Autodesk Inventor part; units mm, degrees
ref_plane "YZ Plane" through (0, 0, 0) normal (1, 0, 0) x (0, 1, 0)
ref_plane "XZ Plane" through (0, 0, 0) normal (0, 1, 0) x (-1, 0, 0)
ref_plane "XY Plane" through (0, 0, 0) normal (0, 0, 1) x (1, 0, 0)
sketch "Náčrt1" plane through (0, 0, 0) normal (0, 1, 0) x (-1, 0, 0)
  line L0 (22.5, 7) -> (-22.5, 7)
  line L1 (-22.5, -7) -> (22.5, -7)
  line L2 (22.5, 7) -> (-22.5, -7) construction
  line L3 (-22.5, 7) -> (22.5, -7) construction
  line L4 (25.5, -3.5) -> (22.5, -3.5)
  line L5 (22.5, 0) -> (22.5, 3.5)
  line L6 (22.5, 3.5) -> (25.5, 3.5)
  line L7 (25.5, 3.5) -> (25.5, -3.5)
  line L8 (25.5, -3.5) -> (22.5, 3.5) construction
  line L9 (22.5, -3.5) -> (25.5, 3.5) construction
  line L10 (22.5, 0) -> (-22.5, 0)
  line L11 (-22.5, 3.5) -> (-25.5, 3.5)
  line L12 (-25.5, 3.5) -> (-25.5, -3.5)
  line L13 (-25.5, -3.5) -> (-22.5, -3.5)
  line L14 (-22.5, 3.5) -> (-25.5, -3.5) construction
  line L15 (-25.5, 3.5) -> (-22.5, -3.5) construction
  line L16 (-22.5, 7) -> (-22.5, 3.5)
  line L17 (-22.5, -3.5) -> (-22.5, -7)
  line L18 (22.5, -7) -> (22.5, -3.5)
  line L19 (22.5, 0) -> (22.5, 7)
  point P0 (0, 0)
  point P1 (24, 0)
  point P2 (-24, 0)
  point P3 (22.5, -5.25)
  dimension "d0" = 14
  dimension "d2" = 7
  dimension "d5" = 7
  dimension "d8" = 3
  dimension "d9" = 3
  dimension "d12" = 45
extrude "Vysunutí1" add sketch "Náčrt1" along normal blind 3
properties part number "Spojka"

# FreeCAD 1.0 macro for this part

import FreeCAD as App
import Part
import Sketcher

V = App.Vector

doc = App.newDocument("Part")
body = doc.addObject("PartDesign::Body", "Body")

# Sketch on XZ plane
sketch1 = body.newObject("Sketcher::SketchObject", "Sketch")
sketch1.AttachmentSupport = (doc.getObject("XZ_Plane"), [""])
sketch1.MapMode = "FlatFace"
sketch1.addGeometry([
    Part.LineSegment(V(-22.5, 3.5, 0), V(-22.5, 7, 0)),  # 0
    Part.LineSegment(V(-22.5, 7, 0), V(22.5, 7, 0)),  # 1
    Part.LineSegment(V(22.5, 7, 0), V(22.5, 3.5, 0)),  # 2
    Part.LineSegment(V(22.5, 3.5, 0), V(25.5, 3.5, 0)),  # 3
    Part.LineSegment(V(25.5, 3.5, 0), V(25.5, -3.5, 0)),  # 4
    Part.LineSegment(V(25.5, -3.5, 0), V(22.5, -3.5, 0)),  # 5
    Part.LineSegment(V(22.5, -3.5, 0), V(22.5, -7, 0)),  # 6
    Part.LineSegment(V(22.5, -7, 0), V(-22.5, -7, 0)),  # 7
    Part.LineSegment(V(-22.5, -7, 0), V(-22.5, -3.5, 0)),  # 8
    Part.LineSegment(V(-22.5, -3.5, 0), V(-25.5, -3.5, 0)),  # 9
    Part.LineSegment(V(-25.5, -3.5, 0), V(-25.5, 3.5, 0)),  # 10
    Part.LineSegment(V(-25.5, 3.5, 0), V(-22.5, 3.5, 0)),  # 11
], False)
sketch1.addConstraint([
    Sketcher.Constraint("Coincident", 0, 2, 1, 1),
    Sketcher.Constraint("Coincident", 1, 2, 2, 1),
    Sketcher.Constraint("Coincident", 2, 2, 3, 1),
    Sketcher.Constraint("Coincident", 3, 2, 4, 1),
    Sketcher.Constraint("Coincident", 4, 2, 5, 1),
    Sketcher.Constraint("Coincident", 5, 2, 6, 1),
    Sketcher.Constraint("Coincident", 6, 2, 7, 1),
    Sketcher.Constraint("Coincident", 7, 2, 8, 1),
    Sketcher.Constraint("Coincident", 8, 2, 9, 1),
    Sketcher.Constraint("Coincident", 9, 2, 10, 1),
    Sketcher.Constraint("Coincident", 10, 2, 11, 1),
    Sketcher.Constraint("Coincident", 11, 2, 0, 1),
    Sketcher.Constraint("Vertical", 0),
    Sketcher.Constraint("Horizontal", 1),
    Sketcher.Constraint("Vertical", 2),
    Sketcher.Constraint("Horizontal", 3),
    Sketcher.Constraint("Vertical", 4),
    Sketcher.Constraint("Horizontal", 5),
    Sketcher.Constraint("Vertical", 6),
    Sketcher.Constraint("Horizontal", 7),
    Sketcher.Constraint("Vertical", 8),
    Sketcher.Constraint("Horizontal", 9),
    Sketcher.Constraint("Vertical", 10),
    Sketcher.Constraint("Horizontal", 11),
    Sketcher.Constraint("Symmetric", 0, 2, 6, 2, -1, 1),
    Sketcher.Constraint("Symmetric", 2, 2, 8, 2, -1, 1),
    Sketcher.Constraint("Symmetric", 4, 2, 10, 2, -1, 1),
    Sketcher.Constraint("Symmetric", 5, 2, 8, 2, -2),
    Sketcher.Constraint("DistanceX", 1, 1, 1, 2, 45.0),
    Sketcher.Constraint("DistanceX", 3, 1, 3, 2, 3.0),
    Sketcher.Constraint("DistanceY", 4, 2, 4, 1, 7.0),
    Sketcher.Constraint("DistanceY", -1, 1, 0, 2, 7.0),
])
pad1 = body.newObject("PartDesign::Pad", "Pad")
pad1.Profile = sketch1
pad1.Length = 3
pad1.Reversed = True

doc.recompute()
